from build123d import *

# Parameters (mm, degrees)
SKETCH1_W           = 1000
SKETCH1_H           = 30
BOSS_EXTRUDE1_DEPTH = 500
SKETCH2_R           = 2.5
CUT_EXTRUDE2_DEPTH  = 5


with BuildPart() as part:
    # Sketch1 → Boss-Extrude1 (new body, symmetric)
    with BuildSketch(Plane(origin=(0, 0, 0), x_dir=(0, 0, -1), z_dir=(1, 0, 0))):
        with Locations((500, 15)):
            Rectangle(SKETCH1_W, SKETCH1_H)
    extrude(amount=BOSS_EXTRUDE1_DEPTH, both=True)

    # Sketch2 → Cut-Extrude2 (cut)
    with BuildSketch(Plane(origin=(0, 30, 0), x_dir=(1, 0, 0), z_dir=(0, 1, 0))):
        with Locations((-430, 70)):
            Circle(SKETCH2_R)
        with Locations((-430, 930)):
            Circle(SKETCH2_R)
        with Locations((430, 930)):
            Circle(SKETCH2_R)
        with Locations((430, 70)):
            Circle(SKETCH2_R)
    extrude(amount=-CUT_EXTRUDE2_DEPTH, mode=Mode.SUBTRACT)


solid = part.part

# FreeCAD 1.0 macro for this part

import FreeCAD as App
import Part
import Sketcher
from FreeCAD import Vector

doc = App.newDocument("Part")
body = doc.addObject("PartDesign::Body", "Body")

# Sketch on YZ plane
sketch1 = doc.addObject("Sketcher::SketchObject", "Sketch")
body.addObject(sketch1)
sketch1.AttachmentSupport = (doc.YZ_Plane, [""])
sketch1.MapMode = "FlatFace"
sketch1.addGeometry([
    Part.LineSegment(Vector(30, 0, 0), Vector(0, 0, 0)),
    Part.LineSegment(Vector(0, 0, 0), Vector(0, -1000, 0)),
    Part.LineSegment(Vector(0, -1000, 0), Vector(30, -1000, 0)),
    Part.LineSegment(Vector(30, -1000, 0), Vector(30, 0, 0)),
], False)
sketch1.addConstraint([
    Sketcher.Constraint("Coincident", 0, 2, 1, 1),
    Sketcher.Constraint("Coincident", 1, 2, 2, 1),
    Sketcher.Constraint("Coincident", 2, 2, 3, 1),
    Sketcher.Constraint("Coincident", 3, 2, 0, 1),
    Sketcher.Constraint("Horizontal", 0),
    Sketcher.Constraint("Vertical", 1),
    Sketcher.Constraint("Horizontal", 2),
    Sketcher.Constraint("Vertical", 3),
    Sketcher.Constraint("Coincident", 0, 2, -1, 1),
    Sketcher.Constraint("DistanceX", 0, 2, 0, 1, 30.0),
    Sketcher.Constraint("DistanceY", 1, 2, 1, 1, 1000.0),
])
pad1 = doc.addObject("PartDesign::Pad", "Pad")
body.addObject(pad1)
pad1.Profile = sketch1
pad1.Length = 1000
pad1.Midplane = True

# Sketch on XZ plane
sketch2 = doc.addObject("Sketcher::SketchObject", "Sketch001")
body.addObject(sketch2)
sketch2.AttachmentSupport = (doc.XZ_Plane, [""])
sketch2.MapMode = "FlatFace"
sketch2.AttachmentOffset = App.Placement(Vector(0, 0, -30), App.Rotation())
sketch2.addGeometry([
    Part.Circle(Vector(-430, -70, 0), Vector(0, 0, 1), 2.5),
    Part.Circle(Vector(-430, -930, 0), Vector(0, 0, 1), 2.5),
    Part.Circle(Vector(430, -930, 0), Vector(0, 0, 1), 2.5),
    Part.Circle(Vector(430, -70, 0), Vector(0, 0, 1), 2.5),
], False)
sketch2.addConstraint([
    Sketcher.Constraint("Equal", 0, 1),
    Sketcher.Constraint("Equal", 1, 2),
    Sketcher.Constraint("Equal", 2, 3),
    Sketcher.Constraint("Symmetric", 1, 3, 2, 3, -2),
    Sketcher.Constraint("Symmetric", 0, 3, 3, 3, -2),
    Sketcher.Constraint("Vertical", 0, 3, 1, 3),
    Sketcher.Constraint("Diameter", 0, 5.0),
    Sketcher.Constraint("DistanceX", 0, 3, -1, 1, 430.0),
    Sketcher.Constraint("DistanceY", 0, 3, -1, 1, 70.0),
    Sketcher.Constraint("DistanceY", 1, 3, -1, 1, 930.0),
])
pocket1 = doc.addObject("PartDesign::Pocket", "Pocket")
body.addObject(pocket1)
pocket1.Profile = sketch2
pocket1.Length = 5
pocket1.Reversed = True

doc.recompute()
